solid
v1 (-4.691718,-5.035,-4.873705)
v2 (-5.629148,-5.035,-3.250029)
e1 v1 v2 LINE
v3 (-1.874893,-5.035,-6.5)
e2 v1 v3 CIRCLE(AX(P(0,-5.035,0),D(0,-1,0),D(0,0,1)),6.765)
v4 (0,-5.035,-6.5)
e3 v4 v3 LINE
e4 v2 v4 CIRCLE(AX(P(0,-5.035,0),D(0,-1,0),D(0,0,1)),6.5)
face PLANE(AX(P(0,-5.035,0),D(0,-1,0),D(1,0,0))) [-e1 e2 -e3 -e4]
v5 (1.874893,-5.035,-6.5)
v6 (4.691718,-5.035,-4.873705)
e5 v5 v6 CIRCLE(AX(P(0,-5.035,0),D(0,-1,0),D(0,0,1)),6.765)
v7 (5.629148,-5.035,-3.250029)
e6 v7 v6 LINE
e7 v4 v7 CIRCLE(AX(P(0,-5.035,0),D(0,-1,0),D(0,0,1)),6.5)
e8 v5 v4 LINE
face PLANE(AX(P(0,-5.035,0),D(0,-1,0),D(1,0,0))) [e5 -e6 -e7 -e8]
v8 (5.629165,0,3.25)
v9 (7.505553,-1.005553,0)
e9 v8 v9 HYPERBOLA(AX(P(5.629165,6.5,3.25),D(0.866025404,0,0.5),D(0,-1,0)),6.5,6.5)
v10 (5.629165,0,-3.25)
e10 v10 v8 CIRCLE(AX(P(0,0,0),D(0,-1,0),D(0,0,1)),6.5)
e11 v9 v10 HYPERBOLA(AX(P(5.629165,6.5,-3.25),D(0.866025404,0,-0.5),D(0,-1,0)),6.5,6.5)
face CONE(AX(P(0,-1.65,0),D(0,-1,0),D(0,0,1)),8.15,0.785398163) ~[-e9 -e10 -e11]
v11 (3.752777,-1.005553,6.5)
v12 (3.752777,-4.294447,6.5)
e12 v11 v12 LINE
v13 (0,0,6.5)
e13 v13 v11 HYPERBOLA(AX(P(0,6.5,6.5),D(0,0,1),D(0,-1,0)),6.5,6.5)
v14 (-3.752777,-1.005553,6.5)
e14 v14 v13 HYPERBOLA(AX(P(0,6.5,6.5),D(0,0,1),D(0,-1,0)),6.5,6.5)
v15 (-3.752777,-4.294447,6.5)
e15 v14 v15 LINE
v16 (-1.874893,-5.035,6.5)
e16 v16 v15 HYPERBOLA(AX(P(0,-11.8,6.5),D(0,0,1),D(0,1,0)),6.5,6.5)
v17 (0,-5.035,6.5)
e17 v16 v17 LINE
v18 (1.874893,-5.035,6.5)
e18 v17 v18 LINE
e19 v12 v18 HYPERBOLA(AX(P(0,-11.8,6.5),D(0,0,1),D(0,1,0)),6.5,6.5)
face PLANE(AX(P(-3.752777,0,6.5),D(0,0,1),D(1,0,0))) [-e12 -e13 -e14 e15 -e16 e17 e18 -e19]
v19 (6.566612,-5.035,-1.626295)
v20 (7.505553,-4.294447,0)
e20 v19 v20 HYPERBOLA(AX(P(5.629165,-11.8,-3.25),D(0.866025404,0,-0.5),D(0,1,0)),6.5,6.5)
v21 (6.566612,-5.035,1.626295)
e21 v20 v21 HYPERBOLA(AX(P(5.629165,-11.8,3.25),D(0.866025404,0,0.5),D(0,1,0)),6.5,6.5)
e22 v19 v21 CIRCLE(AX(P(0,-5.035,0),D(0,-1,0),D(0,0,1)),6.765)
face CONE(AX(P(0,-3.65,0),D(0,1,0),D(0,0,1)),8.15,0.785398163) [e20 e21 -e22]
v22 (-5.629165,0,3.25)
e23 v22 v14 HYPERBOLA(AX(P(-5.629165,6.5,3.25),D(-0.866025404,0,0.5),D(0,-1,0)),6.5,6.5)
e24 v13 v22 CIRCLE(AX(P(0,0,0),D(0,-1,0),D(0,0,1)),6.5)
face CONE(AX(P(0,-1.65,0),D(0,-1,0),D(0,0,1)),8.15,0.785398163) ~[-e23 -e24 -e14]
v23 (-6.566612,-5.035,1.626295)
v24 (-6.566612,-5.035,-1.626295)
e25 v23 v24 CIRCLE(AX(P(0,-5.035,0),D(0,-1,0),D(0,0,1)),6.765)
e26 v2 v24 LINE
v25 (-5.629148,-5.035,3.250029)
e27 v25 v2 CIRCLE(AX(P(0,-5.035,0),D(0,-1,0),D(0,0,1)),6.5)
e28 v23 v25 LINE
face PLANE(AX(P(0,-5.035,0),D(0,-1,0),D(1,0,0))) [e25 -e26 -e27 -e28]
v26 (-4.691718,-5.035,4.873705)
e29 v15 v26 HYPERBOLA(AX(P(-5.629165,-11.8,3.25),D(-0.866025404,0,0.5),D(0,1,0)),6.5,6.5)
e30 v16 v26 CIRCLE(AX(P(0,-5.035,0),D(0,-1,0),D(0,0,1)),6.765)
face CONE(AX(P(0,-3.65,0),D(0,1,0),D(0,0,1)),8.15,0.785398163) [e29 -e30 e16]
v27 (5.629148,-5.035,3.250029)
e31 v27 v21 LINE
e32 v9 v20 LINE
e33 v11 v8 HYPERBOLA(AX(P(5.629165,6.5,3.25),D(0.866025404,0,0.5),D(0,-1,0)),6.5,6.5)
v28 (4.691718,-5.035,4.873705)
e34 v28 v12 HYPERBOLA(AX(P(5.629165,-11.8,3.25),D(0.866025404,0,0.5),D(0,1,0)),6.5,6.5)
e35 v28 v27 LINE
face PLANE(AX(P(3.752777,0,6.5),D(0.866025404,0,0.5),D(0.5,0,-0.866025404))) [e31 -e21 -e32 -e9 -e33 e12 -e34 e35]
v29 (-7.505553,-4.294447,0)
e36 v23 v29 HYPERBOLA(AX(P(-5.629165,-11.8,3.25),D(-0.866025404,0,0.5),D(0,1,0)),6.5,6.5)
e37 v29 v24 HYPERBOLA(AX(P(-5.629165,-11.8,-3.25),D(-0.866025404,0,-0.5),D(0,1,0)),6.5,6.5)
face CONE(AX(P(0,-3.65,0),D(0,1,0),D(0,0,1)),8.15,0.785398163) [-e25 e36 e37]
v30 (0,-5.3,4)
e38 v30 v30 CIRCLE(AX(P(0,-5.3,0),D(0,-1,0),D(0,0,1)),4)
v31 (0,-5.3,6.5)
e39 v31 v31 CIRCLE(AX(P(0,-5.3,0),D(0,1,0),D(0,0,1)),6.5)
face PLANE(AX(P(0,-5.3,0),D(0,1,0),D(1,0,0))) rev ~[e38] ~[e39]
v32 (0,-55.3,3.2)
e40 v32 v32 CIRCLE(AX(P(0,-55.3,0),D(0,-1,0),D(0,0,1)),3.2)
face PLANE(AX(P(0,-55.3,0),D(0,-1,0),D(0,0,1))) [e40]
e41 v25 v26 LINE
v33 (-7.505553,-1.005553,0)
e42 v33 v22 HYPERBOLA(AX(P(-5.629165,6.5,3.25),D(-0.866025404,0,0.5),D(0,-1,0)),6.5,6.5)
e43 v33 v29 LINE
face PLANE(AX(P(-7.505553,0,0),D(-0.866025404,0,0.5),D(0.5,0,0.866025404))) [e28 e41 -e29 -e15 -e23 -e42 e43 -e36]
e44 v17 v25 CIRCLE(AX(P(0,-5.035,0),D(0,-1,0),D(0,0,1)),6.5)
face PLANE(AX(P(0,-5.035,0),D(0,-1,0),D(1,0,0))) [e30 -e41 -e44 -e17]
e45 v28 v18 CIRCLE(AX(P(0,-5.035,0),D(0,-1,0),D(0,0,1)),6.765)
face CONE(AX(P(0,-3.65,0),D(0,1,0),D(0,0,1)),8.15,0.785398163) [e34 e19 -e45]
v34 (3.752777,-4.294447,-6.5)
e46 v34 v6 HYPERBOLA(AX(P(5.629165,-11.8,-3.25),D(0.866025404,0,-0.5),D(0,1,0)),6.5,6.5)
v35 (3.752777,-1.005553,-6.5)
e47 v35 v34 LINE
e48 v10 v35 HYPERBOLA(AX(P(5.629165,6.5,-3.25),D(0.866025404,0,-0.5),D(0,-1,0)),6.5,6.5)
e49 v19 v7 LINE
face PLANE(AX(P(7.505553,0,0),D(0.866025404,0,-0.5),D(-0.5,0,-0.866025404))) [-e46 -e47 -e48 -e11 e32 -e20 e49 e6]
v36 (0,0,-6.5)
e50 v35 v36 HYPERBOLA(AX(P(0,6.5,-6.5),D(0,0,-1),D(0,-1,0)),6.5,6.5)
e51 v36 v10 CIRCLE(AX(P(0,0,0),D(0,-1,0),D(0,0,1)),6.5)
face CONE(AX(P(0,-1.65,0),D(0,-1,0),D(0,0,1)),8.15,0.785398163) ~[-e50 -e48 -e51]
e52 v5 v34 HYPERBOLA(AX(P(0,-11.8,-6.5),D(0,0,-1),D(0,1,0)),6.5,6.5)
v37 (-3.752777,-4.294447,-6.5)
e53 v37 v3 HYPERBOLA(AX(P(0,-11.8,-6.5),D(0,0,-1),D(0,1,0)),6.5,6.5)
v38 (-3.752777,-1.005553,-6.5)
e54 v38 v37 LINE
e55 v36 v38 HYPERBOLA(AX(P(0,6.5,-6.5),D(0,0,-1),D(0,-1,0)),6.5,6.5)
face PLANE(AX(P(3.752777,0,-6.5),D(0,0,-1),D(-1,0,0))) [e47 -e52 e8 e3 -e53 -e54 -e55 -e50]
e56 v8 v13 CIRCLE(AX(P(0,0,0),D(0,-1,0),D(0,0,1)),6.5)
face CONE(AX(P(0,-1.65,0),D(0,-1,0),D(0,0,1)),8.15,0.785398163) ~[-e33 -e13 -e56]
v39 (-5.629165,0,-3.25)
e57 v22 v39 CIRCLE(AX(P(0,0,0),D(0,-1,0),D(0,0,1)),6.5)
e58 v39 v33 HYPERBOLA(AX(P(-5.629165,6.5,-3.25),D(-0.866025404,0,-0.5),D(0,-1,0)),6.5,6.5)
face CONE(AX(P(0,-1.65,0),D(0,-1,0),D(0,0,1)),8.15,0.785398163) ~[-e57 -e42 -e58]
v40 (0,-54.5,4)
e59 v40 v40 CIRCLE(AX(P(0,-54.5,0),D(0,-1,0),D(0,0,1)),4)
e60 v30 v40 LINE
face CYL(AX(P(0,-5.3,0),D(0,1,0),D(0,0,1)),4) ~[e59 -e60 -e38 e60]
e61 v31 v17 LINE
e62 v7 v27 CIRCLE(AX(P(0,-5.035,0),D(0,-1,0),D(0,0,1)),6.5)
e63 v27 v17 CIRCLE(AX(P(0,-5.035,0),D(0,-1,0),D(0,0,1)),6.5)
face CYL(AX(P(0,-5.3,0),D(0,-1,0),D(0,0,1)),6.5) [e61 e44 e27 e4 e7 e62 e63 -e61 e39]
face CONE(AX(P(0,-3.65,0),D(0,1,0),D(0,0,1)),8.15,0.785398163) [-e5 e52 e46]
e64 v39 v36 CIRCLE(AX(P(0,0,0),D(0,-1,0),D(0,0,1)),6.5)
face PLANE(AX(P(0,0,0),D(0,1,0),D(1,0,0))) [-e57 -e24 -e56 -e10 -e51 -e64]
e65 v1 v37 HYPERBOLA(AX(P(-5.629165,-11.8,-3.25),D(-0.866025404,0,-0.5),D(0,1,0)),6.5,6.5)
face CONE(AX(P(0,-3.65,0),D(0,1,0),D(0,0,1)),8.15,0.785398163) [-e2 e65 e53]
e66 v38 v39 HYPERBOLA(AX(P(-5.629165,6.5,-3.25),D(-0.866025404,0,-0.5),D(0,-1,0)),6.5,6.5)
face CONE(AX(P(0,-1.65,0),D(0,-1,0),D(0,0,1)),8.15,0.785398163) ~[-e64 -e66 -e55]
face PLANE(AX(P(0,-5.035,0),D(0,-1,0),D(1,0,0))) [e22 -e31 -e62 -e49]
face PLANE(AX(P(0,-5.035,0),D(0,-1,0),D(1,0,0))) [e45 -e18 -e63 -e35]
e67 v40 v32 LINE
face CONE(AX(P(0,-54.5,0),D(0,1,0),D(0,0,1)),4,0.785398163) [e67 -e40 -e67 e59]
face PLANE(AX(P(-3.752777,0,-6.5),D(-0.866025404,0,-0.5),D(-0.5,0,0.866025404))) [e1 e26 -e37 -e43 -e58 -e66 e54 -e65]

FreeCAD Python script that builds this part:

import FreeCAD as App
import Part
import Sketcher
from FreeCAD import Vector
Q = App.Units.Quantity


def edges_at(feature, points):
    """Names of the edges that pass closest to the given points."""
    edges = feature.Shape.Edges
    near = lambda p: min(range(len(edges)), key=lambda i: edges[i].distToShape(Part.Vertex(*p))[0])
    return sorted({f"Edge{near(p) + 1}" for p in points})

doc = App.newDocument("Part")
body = doc.addObject("PartDesign::Body", "Body")

# Sketch on XZ plane
sketch1 = body.newObject("Sketcher::SketchObject", "Sketch")
sketch1.AttachmentSupport = (doc.getObject("XZ_Plane"), [""])
sketch1.MapMode = "FlatFace"
sketch1.addGeometry([
    Part.LineSegment(Vector(7.505553, 0, 0), Vector(3.752777, -6.5, 0)),  # 0
    Part.LineSegment(Vector(3.752777, -6.5, 0), Vector(-3.752777, -6.5, 0)),  # 1
    Part.LineSegment(Vector(-3.752777, -6.5, 0), Vector(-7.505553, 0, 0)),  # 2
    Part.LineSegment(Vector(-7.505553, 0, 0), Vector(-3.752777, 6.5, 0)),  # 3
    Part.LineSegment(Vector(-3.752777, 6.5, 0), Vector(3.752777, 6.5, 0)),  # 4
    Part.LineSegment(Vector(3.752777, 6.5, 0), Vector(7.505553, 0, 0)),  # 5
], False)
sketch1.addConstraint([
    Sketcher.Constraint("Coincident", 0, 2, 1, 1),
    Sketcher.Constraint("Coincident", 1, 2, 2, 1),
    Sketcher.Constraint("Coincident", 2, 2, 3, 1),
    Sketcher.Constraint("Coincident", 3, 2, 4, 1),
    Sketcher.Constraint("Coincident", 4, 2, 5, 1),
    Sketcher.Constraint("Coincident", 5, 2, 0, 1),
    Sketcher.Constraint("Horizontal", 1),
    Sketcher.Constraint("Horizontal", 4),
    Sketcher.Constraint("Symmetric", 0, 2, 3, 2, -1, 1),
    Sketcher.Constraint("Symmetric", 2, 2, 5, 2, -1, 1),
    Sketcher.Constraint("PointOnObject", 2, 2, -1),
    Sketcher.Constraint("Parallel", 2, 5),
    Sketcher.Constraint("Vertical", 1, 2, 3, 2),
    Sketcher.Constraint("Angle", 0, Q("-120 deg")),
    Sketcher.Constraint("DistanceY", 1, 2, 3, 2, Q("13 mm")),
    Sketcher.Constraint("DistanceX", 1, 2, 1, 1, Q("7.505554 mm")),
])
pad1 = body.newObject("PartDesign::Pad", "Pad")
pad1.Profile = sketch1
pad1.Length = 5.3

# Sketch on YZ plane
sketch2 = body.newObject("Sketcher::SketchObject", "Sketch001")
sketch2.AttachmentSupport = (doc.getObject("YZ_Plane"), [""])
sketch2.MapMode = "FlatFace"
sketch2.addGeometry([
    Part.LineSegment(Vector(0, 6.5, 0), Vector(0, 8.15, 0)),  # 0
    Part.LineSegment(Vector(0, 8.15, 0), Vector(-1.65, 8.15, 0)),  # 1
    Part.LineSegment(Vector(-1.65, 8.15, 0), Vector(0, 6.5, 0)),  # 2
    Part.LineSegment(Vector(-5.3, 6.5, 0), Vector(-3.65, 8.15, 0)),  # 3
    Part.LineSegment(Vector(-3.65, 8.15, 0), Vector(-5.3, 8.15, 0)),  # 4
    Part.LineSegment(Vector(-5.3, 8.15, 0), Vector(-5.3, 6.5, 0)),  # 5
], False)
sketch2.addConstraint([
    Sketcher.Constraint("Coincident", 0, 2, 1, 1),
    Sketcher.Constraint("Coincident", 1, 2, 2, 1),
    Sketcher.Constraint("Coincident", 2, 2, 0, 1),
    Sketcher.Constraint("Coincident", 3, 2, 4, 1),
    Sketcher.Constraint("Coincident", 4, 2, 5, 1),
    Sketcher.Constraint("Coincident", 5, 2, 3, 1),
    Sketcher.Constraint("Vertical", 0),
    Sketcher.Constraint("Horizontal", 1),
    Sketcher.Constraint("Horizontal", 4),
    Sketcher.Constraint("Vertical", 5),
    Sketcher.Constraint("PointOnObject", 0, 2, -2),
    Sketcher.Constraint("Perpendicular", 2, 3),
    Sketcher.Constraint("Horizontal", 1, 2, 3, 2),
    Sketcher.Constraint("Horizontal", 2, 2, 5, 2),
    Sketcher.Constraint("Equal", 1, 4),
    Sketcher.Constraint("DistanceX", 3, 2, 1, 2, Q("2 mm")),
    Sketcher.Constraint("DistanceX", 1, 2, 1, 1, Q("1.65 mm")),
    Sketcher.Constraint("DistanceY", -1, 1, 2, 2, Q("6.5 mm")),
])
groove = body.newObject("PartDesign::Groove", "Groove")
groove.Profile = sketch2
groove.ReferenceAxis = (sketch2, ["H_Axis"])
groove.Angle = 360

# Sketch on XZ plane
sketch3 = body.newObject("Sketcher::SketchObject", "Sketch002")
sketch3.AttachmentSupport = (doc.getObject("XZ_Plane"), [""])
sketch3.MapMode = "FlatFace"
sketch3.AttachmentOffset = App.Placement(Vector(0, 0, 5.3), App.Rotation())
sketch3.addGeometry([
    Part.LineSegment(Vector(-10.561, 9.555, 0), Vector(-10.561, -9.555, 0)),  # 0
    Part.LineSegment(Vector(-10.561, -9.555, 0), Vector(10.561, -9.555, 0)),  # 1
    Part.LineSegment(Vector(10.561, -9.555, 0), Vector(10.561, 9.555, 0)),  # 2
    Part.LineSegment(Vector(10.561, 9.555, 0), Vector(-10.561, 9.555, 0)),  # 3
    Part.Circle(Vector(0, 0, 0), Vector(0, 0, 1), 6.5),  # 4
], False)
sketch3.addConstraint([
    Sketcher.Constraint("Coincident", 0, 2, 1, 1),
    Sketcher.Constraint("Coincident", 1, 2, 2, 1),
    Sketcher.Constraint("Coincident", 2, 2, 3, 1),
    Sketcher.Constraint("Coincident", 3, 2, 0, 1),
    Sketcher.Constraint("Vertical", 0),
    Sketcher.Constraint("Horizontal", 1),
    Sketcher.Constraint("Vertical", 2),
    Sketcher.Constraint("Horizontal", 3),
    Sketcher.Constraint("Coincident", 4, 3, -1, 1),
    Sketcher.Constraint("Symmetric", 0, 2, 2, 2, -1, 1),
    Sketcher.Constraint("Diameter", 4, Q("13 mm")),
    Sketcher.Constraint("DistanceY", 0, 2, 0, 1, Q("19.11 mm")),
    Sketcher.Constraint("DistanceX", 1, 1, 1, 2, Q("21.122 mm")),
])
pocket1 = body.newObject("PartDesign::Pocket", "Pocket")
pocket1.Profile = sketch3
pocket1.Length = 0.265

# Sketch on XZ plane
sketch4 = body.newObject("Sketcher::SketchObject", "Sketch003")
sketch4.AttachmentSupport = (doc.getObject("XZ_Plane"), [""])
sketch4.MapMode = "FlatFace"
sketch4.AttachmentOffset = App.Placement(Vector(0, 0, 5.3), App.Rotation())
sketch4.addGeometry(Part.Circle(Vector(0, 0, 0), Vector(0, 0, 1), 4), False)
sketch4.addConstraint([
    Sketcher.Constraint("Coincident", 0, 3, -1, 1),
    Sketcher.Constraint("Diameter", 0, Q("8 mm")),
])
pad2 = body.newObject("PartDesign::Pad", "Pad001")
pad2.Profile = sketch4
pad2.Length = 50
doc.recompute()

chamfer = body.newObject("PartDesign::Chamfer", "Chamfer")
chamfer.Base = (pad2, edges_at(pad2, [(0, -55.3, -4)]))
chamfer.Size = 0.8

doc.recompute()
